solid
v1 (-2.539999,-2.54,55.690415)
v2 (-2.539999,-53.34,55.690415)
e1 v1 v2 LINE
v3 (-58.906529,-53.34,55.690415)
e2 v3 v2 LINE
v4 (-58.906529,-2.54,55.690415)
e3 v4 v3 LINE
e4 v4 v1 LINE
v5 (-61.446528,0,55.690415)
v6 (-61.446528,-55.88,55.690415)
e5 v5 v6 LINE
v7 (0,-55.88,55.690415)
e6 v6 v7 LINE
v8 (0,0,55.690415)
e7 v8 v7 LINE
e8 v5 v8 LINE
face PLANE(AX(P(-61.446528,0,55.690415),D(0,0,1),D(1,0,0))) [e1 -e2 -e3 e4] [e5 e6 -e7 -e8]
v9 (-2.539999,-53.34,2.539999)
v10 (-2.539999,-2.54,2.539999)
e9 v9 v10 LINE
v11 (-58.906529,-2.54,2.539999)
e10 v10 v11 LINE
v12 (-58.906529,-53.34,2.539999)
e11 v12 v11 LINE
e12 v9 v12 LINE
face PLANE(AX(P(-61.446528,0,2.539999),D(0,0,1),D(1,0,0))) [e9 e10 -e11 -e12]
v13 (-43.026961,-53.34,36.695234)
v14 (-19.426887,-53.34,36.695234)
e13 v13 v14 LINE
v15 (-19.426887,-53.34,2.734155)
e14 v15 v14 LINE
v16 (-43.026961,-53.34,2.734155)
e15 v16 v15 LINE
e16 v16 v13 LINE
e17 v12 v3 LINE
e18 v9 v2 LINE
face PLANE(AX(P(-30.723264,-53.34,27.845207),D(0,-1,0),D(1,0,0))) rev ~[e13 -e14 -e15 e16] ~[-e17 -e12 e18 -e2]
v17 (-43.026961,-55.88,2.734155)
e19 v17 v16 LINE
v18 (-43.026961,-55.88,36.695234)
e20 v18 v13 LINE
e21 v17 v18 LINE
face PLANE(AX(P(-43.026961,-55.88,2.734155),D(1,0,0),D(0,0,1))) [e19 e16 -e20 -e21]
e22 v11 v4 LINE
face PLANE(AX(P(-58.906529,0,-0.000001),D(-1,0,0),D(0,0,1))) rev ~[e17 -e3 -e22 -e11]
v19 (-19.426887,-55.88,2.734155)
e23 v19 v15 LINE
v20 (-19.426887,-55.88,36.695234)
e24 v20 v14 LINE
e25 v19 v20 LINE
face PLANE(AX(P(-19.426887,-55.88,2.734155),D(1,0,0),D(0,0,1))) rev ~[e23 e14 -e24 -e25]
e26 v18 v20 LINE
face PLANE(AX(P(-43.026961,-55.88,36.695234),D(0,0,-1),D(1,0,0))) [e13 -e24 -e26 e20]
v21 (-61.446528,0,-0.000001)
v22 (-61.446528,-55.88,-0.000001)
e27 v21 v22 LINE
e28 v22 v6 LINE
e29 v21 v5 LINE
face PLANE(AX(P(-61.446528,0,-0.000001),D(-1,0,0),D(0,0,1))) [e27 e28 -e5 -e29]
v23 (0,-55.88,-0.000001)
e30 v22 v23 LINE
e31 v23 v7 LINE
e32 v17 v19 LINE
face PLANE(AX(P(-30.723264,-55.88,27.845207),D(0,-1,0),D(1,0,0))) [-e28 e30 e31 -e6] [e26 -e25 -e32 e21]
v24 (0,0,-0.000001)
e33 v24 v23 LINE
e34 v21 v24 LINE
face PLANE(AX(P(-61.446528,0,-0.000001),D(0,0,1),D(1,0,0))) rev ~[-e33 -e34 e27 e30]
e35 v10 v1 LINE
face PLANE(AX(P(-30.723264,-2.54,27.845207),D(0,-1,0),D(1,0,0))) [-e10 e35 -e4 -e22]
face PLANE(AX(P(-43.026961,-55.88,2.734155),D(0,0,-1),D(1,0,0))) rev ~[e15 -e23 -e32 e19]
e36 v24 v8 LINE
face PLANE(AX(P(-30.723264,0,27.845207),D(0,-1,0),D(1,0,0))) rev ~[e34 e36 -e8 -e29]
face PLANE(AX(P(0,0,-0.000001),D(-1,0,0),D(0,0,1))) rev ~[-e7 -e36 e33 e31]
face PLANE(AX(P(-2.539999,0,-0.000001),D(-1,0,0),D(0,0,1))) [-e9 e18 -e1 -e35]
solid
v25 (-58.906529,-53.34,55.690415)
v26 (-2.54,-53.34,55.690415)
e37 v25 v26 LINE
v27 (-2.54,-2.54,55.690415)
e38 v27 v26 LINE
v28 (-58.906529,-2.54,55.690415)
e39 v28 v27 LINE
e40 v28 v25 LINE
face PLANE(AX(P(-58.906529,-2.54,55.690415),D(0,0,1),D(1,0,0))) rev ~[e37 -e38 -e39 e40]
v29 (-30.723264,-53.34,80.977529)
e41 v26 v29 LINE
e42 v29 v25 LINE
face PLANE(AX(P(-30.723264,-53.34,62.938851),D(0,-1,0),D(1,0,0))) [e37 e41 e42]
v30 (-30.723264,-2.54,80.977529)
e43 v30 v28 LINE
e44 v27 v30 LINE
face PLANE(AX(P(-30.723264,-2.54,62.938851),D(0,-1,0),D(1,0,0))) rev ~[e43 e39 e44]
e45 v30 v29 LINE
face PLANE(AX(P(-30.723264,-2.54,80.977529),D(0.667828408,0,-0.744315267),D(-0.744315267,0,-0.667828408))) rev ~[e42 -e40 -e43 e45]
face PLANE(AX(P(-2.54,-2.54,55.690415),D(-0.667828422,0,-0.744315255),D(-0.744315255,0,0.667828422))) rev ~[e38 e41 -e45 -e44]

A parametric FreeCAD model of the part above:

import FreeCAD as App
import Part
import Sketcher
from FreeCAD import Vector
Q = App.Units.Quantity


def faces_at(feature, points):
    """Names of the faces that lie closest to the given points."""
    faces = feature.Shape.Faces
    near = lambda p: min(range(len(faces)), key=lambda i: faces[i].distToShape(Part.Vertex(*p))[0])
    return sorted({f"Face{near(p) + 1}" for p in points})


def add_polygon(sketch, points):
    """Adds a closed chain of lines whose ends are joined by coincident constraints."""
    first, n = sketch.GeometryCount, len(points)
    for a, b in zip(points, points[1:] + points[:1]):
        sketch.addGeometry(Part.LineSegment(App.Vector(*a, 0), App.Vector(*b, 0)), False)
    for i in range(n):
        sketch.addConstraint(Sketcher.Constraint("Coincident", first + i, 2, first + (i + 1) % n, 1))

doc = App.newDocument("Part")
body = doc.addObject("PartDesign::Body", "Body")

sketch1 = body.newObject("Sketcher::SketchObject", "Sketch")
sketch1.AttachmentSupport = (doc.getObject("XZ_Plane"), [""])
sketch1.MapMode = "FlatFace"
add_polygon(sketch1, [(-61, 56), (-61, 0), (0, 0), (0, 56)])
sketch1.addConstraint([
    Sketcher.Constraint("Vertical", 0),
    Sketcher.Constraint("Horizontal", 1),
    Sketcher.Constraint("Vertical", 2),
    Sketcher.Constraint("Horizontal", 3),
    Sketcher.Constraint("Coincident", 1, 2, -1, 1),
    Sketcher.Constraint("DistanceX", 1, 1, 1, 2, 61.446529),
    Sketcher.Constraint("DistanceY", 0, 2, 0, 1, 55.690415),
])
pad1 = body.newObject("PartDesign::Pad", "Pad")
pad1.Profile = sketch1
pad1.Length = Q("2.2 in")
doc.recompute()

thickness = body.newObject("PartDesign::Thickness", "Thickness")
thickness.Base = (pad1, faces_at(pad1, [(-30.723, -27.94, 55.69)]))
thickness.Value = Q("0.1 in")
thickness.Reversed = True
thickness.Join = "Arc"

sketch2 = body.newObject("Sketcher::SketchObject", "Sketch001")
sketch2.AttachmentSupport = (doc.getObject("XZ_Plane"), [""])
sketch2.MapMode = "FlatFace"
sketch2.AttachmentOffset = App.Placement(Vector(0, 0, 2.2 * 25.4), App.Rotation())
add_polygon(sketch2, [(-43, 37), (-43, 3), (-19, 3), (-19, 37)])
sketch2.addConstraint([
    Sketcher.Constraint("Vertical", 0),
    Sketcher.Constraint("Horizontal", 1),
    Sketcher.Constraint("Vertical", 2),
    Sketcher.Constraint("Horizontal", 3),
    Sketcher.Constraint("DistanceY", 0, 2, 0, 1, 33.961079),
    Sketcher.Constraint("DistanceX", 1, 1, 1, 2, 23.600073),
    Sketcher.Constraint("DistanceX", 0, 2, -1, 1, 43.026961),
    Sketcher.Constraint("DistanceY", -1, 1, 0, 2, 2.734155),
])
pocket1 = body.newObject("PartDesign::Pocket", "Pocket")
pocket1.Profile = sketch2
pocket1.Length = Q("1 in")
body2 = doc.addObject("PartDesign::Body", "Body001")

sketch3 = body2.newObject("Sketcher::SketchObject", "Sketch002")
sketch3.AttachmentSupport = (doc.getObject("XZ_Plane001"), [""])
sketch3.MapMode = "FlatFace"
sketch3.AttachmentOffset = App.Placement(Vector(0, 0, 0.1 * 25.4), App.Rotation())
add_polygon(sketch3, [(-31, 81), (-59, 56), (-3, 56)])
sketch3.addConstraint([
    Sketcher.Constraint("Horizontal", 1),
    Sketcher.Constraint("Equal", 0, 2),
    Sketcher.Constraint("DistanceX", 1, 2, -1, 1, Q("0.1 in")),
    Sketcher.Constraint("DistanceX", 1, 1, 1, 2, 56.366529),
    Sketcher.Constraint("DistanceY", -1, 1, 2, 2, 80.977529),
    Sketcher.Constraint("Distance", 0, 37.864688),
])
pad2 = body2.newObject("PartDesign::Pad", "Pad001")
pad2.Profile = sketch3
pad2.Length = Q("2 in")

doc.recompute()
